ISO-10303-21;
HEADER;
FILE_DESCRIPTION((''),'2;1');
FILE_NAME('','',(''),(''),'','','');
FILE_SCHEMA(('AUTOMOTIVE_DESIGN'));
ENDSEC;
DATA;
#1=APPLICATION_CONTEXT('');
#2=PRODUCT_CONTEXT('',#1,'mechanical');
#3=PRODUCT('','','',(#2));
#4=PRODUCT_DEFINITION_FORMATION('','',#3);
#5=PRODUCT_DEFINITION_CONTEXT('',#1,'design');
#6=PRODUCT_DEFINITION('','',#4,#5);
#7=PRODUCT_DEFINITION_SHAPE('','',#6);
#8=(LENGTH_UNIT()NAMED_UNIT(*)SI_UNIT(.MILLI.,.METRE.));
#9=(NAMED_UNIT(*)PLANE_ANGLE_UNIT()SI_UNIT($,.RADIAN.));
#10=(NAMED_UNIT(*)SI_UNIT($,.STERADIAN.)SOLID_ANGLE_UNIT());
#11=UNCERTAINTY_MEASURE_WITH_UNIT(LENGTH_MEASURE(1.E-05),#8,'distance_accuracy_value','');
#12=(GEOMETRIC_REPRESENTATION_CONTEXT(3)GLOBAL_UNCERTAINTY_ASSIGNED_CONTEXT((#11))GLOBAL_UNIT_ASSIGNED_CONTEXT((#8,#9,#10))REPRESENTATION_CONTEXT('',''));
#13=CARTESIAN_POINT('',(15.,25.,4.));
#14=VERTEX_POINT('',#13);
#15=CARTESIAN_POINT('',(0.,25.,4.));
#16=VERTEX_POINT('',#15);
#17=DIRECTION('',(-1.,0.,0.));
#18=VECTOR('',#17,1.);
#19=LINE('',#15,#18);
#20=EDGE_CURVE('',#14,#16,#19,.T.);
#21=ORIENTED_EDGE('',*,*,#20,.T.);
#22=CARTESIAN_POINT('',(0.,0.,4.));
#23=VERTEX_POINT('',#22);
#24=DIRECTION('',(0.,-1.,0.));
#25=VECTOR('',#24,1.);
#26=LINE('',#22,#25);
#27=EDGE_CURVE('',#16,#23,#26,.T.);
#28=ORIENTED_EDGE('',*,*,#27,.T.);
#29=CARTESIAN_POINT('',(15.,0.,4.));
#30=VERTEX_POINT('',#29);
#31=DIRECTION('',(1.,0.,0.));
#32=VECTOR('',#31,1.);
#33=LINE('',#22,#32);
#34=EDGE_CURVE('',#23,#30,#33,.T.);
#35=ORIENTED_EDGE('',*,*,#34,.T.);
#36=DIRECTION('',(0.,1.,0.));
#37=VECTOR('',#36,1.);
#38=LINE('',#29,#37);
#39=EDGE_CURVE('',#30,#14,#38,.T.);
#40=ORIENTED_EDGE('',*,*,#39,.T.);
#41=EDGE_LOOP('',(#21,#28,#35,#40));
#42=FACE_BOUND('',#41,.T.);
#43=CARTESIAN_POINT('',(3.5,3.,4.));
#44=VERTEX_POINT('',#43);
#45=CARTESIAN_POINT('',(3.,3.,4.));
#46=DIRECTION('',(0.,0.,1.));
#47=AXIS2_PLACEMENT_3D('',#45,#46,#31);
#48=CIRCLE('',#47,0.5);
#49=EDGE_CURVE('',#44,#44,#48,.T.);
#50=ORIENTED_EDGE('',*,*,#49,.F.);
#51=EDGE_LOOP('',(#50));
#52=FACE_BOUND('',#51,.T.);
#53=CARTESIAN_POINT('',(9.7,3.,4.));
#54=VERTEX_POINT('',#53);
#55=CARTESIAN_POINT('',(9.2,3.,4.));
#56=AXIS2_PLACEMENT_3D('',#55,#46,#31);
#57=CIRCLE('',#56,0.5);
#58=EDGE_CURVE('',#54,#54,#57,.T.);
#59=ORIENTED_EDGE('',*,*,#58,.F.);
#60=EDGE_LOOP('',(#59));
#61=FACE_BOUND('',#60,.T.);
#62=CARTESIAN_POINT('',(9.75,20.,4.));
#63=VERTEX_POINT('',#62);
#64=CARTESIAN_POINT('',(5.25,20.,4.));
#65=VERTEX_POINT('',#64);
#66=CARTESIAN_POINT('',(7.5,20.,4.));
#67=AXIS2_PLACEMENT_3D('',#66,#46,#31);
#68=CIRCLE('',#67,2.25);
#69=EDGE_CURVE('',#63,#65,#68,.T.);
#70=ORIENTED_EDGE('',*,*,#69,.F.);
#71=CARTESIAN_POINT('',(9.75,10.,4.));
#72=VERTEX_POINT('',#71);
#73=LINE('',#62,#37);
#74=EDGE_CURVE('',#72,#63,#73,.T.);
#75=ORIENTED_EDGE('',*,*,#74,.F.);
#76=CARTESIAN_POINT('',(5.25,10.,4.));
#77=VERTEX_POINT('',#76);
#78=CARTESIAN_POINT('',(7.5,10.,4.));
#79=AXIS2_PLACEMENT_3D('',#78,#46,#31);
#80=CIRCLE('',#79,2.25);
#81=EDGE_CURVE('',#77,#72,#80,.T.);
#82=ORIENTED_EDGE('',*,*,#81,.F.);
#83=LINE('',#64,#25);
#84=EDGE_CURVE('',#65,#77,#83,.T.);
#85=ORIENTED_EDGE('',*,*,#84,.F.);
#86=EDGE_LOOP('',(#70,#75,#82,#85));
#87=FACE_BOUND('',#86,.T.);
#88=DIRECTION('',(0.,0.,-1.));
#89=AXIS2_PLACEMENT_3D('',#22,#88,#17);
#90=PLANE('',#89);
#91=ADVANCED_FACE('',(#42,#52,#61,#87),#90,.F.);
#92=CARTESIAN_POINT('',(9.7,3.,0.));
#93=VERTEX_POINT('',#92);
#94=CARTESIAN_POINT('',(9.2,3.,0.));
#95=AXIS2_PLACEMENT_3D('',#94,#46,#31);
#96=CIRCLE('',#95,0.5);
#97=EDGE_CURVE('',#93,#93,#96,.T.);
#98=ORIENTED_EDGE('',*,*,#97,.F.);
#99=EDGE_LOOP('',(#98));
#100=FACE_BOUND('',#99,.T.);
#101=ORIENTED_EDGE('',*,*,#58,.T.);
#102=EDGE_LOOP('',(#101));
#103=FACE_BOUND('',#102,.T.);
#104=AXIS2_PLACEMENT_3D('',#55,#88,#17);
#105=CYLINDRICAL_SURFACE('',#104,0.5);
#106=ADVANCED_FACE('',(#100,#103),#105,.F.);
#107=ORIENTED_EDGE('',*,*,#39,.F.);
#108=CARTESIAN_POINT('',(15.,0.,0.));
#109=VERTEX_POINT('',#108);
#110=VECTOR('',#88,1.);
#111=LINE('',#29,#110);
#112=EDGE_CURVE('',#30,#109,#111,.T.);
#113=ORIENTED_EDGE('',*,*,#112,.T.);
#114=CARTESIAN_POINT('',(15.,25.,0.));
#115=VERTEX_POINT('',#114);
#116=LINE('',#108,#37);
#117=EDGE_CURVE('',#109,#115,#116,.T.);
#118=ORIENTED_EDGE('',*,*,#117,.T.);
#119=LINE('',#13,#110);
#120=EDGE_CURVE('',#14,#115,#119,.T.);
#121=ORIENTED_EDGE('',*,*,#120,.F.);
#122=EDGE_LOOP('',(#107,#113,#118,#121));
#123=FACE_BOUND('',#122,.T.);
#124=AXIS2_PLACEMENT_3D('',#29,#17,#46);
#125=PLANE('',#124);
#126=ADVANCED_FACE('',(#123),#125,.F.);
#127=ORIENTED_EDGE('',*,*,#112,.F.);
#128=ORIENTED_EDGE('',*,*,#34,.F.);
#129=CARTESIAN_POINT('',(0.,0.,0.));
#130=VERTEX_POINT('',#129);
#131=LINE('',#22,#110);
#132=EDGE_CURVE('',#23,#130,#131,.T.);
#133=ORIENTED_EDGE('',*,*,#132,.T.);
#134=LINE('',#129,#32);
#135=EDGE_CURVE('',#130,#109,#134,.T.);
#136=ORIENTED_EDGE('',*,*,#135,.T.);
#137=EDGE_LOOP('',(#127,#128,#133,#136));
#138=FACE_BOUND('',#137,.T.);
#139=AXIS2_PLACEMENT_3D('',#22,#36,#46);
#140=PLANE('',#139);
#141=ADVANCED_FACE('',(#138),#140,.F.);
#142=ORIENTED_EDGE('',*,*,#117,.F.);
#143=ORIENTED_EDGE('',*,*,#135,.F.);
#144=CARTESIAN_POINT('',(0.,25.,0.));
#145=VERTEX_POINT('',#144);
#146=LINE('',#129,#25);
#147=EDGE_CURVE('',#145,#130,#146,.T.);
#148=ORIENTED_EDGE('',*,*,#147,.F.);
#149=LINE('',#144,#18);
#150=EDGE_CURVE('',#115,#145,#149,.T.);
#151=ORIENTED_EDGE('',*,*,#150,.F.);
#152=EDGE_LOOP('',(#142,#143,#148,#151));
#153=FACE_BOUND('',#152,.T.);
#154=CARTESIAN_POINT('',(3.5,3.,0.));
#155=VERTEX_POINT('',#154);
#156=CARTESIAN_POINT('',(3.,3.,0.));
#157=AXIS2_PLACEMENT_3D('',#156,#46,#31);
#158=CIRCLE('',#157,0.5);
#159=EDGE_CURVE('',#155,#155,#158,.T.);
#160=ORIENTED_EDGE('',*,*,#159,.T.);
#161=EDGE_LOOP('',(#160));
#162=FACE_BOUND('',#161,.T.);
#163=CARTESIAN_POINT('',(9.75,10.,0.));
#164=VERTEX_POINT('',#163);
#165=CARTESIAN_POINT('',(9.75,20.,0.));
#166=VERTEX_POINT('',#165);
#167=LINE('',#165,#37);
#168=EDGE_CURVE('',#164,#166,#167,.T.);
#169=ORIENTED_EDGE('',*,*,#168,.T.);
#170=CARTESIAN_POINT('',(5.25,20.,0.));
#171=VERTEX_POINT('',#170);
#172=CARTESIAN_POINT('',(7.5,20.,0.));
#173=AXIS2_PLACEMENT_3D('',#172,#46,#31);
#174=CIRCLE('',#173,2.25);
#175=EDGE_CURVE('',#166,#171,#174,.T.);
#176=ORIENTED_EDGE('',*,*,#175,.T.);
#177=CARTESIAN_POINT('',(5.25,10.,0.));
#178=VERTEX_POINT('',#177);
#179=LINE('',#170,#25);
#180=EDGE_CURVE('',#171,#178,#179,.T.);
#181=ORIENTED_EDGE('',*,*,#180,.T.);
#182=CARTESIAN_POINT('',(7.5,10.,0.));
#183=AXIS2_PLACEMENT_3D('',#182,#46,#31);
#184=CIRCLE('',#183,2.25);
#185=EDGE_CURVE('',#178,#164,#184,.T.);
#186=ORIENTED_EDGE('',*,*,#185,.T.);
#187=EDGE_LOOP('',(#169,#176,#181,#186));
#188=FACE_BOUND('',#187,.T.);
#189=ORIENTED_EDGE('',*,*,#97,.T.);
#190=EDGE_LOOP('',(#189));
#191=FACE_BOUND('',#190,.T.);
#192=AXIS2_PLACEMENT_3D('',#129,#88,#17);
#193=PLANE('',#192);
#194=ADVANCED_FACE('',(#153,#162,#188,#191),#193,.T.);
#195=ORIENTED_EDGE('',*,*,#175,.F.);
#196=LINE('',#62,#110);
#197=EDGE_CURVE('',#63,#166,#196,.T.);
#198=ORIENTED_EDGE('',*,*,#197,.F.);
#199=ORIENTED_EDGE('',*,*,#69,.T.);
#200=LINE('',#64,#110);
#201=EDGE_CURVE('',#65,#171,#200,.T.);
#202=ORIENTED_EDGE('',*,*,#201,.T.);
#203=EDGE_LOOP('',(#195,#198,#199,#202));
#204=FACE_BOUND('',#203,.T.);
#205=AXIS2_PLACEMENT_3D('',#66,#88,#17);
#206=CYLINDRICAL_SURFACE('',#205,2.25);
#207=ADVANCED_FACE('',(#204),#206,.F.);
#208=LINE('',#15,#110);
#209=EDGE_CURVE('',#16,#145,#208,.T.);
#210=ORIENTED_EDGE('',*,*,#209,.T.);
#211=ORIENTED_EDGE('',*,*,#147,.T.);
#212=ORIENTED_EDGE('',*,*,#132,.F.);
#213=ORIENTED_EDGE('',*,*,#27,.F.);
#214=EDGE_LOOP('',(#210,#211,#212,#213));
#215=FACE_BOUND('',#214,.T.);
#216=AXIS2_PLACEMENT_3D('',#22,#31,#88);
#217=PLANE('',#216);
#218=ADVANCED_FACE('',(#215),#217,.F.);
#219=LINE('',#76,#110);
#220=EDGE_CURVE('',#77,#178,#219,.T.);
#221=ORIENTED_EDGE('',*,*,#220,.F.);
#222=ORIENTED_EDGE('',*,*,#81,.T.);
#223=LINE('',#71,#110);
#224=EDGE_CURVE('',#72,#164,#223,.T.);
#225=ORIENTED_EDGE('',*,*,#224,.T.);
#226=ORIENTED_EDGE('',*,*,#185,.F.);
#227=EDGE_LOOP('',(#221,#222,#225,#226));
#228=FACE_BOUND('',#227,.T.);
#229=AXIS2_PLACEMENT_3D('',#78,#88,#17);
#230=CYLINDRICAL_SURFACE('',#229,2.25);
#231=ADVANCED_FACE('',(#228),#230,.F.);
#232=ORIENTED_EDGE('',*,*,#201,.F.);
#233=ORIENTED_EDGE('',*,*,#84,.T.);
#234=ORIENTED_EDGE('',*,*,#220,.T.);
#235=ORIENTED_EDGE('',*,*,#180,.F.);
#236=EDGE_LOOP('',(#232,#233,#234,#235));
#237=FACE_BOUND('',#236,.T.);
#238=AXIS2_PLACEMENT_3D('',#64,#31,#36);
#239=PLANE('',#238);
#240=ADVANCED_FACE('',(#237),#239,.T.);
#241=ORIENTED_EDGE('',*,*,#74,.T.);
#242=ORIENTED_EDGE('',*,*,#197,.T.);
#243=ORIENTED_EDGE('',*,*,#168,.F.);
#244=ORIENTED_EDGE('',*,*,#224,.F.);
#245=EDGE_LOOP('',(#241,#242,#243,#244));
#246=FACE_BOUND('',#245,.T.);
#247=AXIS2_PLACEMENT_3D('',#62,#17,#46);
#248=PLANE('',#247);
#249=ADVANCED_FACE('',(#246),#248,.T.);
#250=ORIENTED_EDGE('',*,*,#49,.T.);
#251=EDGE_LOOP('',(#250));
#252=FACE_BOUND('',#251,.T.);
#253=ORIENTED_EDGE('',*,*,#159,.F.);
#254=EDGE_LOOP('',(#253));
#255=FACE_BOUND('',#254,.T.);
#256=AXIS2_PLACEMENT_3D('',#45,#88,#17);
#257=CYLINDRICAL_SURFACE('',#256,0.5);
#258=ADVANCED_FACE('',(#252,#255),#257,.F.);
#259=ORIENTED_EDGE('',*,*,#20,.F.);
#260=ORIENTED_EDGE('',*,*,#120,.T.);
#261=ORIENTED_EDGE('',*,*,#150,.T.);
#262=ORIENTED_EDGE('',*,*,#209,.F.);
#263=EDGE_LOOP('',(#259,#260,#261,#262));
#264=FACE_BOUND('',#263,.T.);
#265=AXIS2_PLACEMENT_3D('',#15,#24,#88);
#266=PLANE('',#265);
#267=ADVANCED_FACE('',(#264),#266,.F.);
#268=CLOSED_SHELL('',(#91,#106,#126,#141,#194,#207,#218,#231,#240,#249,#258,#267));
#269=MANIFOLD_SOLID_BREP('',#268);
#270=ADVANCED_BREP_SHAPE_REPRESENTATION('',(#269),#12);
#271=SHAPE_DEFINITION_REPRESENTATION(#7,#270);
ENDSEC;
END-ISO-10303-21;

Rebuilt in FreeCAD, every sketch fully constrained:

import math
import FreeCAD as App
import Part
import Sketcher


def add_polygon(sketch, points):
    """Adds a closed chain of lines whose ends are joined by coincident constraints."""
    first, n = sketch.GeometryCount, len(points)
    for a, b in zip(points, points[1:] + points[:1]):
        sketch.addGeometry(Part.LineSegment(App.Vector(*a, 0), App.Vector(*b, 0)), False)
    for i in range(n):
        sketch.addConstraint(Sketcher.Constraint("Coincident", first + i, 2, first + (i + 1) % n, 1))

doc = App.newDocument("Part")
body = doc.addObject("PartDesign::Body", "Body")

# Sketch on XY plane
sketch1 = body.newObject("Sketcher::SketchObject", "Sketch")
sketch1.AttachmentSupport = (doc.getObject("XY_Plane"), [""])
sketch1.MapMode = "FlatFace"
add_polygon(sketch1, [(0, 25), (0, 0), (15, 0), (15, 25)])  # lines 0-3
sketch1.addGeometry(Part.Circle(App.Vector(3, 3, 0), App.Vector(0, 0, 1), 0.5), False)  # 4
sketch1.addGeometry(Part.Circle(App.Vector(9.2, 3, 0), App.Vector(0, 0, 1), 0.5), False)  # 5
sketch1.addGeometry(Part.ArcOfCircle(Part.Circle(App.Vector(7.5, 20, 0), App.Vector(0, 0, 1), 2.2), math.radians(0), math.radians(180)), False)  # 6
sketch1.addGeometry(Part.LineSegment(App.Vector(9.8, 20, 0), App.Vector(9.8, 10, 0)), False)  # 7
sketch1.addGeometry(Part.ArcOfCircle(Part.Circle(App.Vector(7.5, 10, 0), App.Vector(0, 0, 1), 2.2), math.radians(180), math.radians(360)), False)  # 8
sketch1.addGeometry(Part.LineSegment(App.Vector(5.2, 10, 0), App.Vector(5.2, 20, 0)), False)  # 9
sketch1.addConstraint([
    Sketcher.Constraint("Tangent", 6, 1, 7, 1),
    Sketcher.Constraint("Tangent", 7, 2, 8, 2),
    Sketcher.Constraint("Tangent", 8, 1, 9, 1),
    Sketcher.Constraint("Tangent", 9, 2, 6, 2),
    Sketcher.Constraint("Vertical", 0),
    Sketcher.Constraint("Horizontal", 1),
    Sketcher.Constraint("Vertical", 2),
    Sketcher.Constraint("Horizontal", 3),
    Sketcher.Constraint("Vertical", 7),
    Sketcher.Constraint("Vertical", 9),
    Sketcher.Constraint("Coincident", 0, 2, -1, 1),
    Sketcher.Constraint("Equal", 4, 5),
    Sketcher.Constraint("Horizontal", 4, 3, 5, 3),
    Sketcher.Constraint("Diameter", 4, 1.0),
    Sketcher.Constraint("DistanceX", 1, 1, 1, 2, 15.0),
    Sketcher.Constraint("DistanceY", 0, 2, 0, 1, 25.0),
    Sketcher.Constraint("DistanceY", 7, 2, 7, 1, 10.0),
    Sketcher.Constraint("Radius", 6, 2.25),
    Sketcher.Constraint("DistanceX", -1, 1, 4, 3, 3.0),
    Sketcher.Constraint("DistanceY", -1, 1, 4, 3, 3.0),
    Sketcher.Constraint("DistanceY", -1, 1, 6, 3, 20.0),
    Sketcher.Constraint("DistanceX", -1, 1, 5, 3, 9.2),
    Sketcher.Constraint("DistanceX", -1, 1, 6, 3, 7.5),
])
pad1 = body.newObject("PartDesign::Pad", "Pad")
pad1.Profile = sketch1
pad1.Length = 4

doc.recompute()
